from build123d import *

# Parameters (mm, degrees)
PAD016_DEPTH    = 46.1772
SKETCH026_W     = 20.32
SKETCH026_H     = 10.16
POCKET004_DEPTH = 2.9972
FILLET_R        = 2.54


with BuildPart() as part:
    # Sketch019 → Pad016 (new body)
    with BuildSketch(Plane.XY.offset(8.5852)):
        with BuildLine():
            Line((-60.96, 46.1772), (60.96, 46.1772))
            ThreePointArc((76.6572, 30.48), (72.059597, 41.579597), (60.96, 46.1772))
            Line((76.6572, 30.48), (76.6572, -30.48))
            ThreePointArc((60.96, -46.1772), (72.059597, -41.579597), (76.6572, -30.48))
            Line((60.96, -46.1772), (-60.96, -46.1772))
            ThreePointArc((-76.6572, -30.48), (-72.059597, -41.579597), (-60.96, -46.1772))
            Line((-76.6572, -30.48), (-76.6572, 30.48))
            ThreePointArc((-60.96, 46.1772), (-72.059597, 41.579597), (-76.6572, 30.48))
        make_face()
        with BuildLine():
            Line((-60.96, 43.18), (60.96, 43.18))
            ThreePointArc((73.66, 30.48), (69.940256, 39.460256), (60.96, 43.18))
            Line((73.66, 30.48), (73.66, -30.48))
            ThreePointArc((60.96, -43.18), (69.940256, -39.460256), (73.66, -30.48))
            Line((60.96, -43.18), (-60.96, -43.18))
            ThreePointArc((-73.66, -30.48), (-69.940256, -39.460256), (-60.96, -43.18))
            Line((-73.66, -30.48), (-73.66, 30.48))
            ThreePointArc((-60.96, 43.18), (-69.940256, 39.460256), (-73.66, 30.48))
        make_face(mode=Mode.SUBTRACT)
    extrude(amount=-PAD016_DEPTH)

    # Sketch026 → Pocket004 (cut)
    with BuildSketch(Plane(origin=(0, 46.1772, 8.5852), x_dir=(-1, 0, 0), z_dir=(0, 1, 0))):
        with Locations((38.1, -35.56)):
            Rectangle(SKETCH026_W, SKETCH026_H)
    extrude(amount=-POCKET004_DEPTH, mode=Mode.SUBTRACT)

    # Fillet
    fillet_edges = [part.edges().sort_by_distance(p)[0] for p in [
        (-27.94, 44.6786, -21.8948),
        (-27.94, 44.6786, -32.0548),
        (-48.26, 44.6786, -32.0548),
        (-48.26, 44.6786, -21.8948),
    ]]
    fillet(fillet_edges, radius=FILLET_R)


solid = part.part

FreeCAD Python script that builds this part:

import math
import FreeCAD as App
import Part
import Sketcher
from FreeCAD import Vector
Q = App.Units.Quantity


def edges_at(feature, points):
    """Names of the edges that pass closest to the given points."""
    edges = feature.Shape.Edges
    near = lambda p: min(range(len(edges)), key=lambda i: edges[i].distToShape(Part.Vertex(*p))[0])
    return sorted({f"Edge{near(p) + 1}" for p in points})


def add_polygon(sketch, points):
    """Adds a closed chain of lines whose ends are joined by coincident constraints."""
    first, n = sketch.GeometryCount, len(points)
    for a, b in zip(points, points[1:] + points[:1]):
        sketch.addGeometry(Part.LineSegment(App.Vector(*a, 0), App.Vector(*b, 0)), False)
    for i in range(n):
        sketch.addConstraint(Sketcher.Constraint("Coincident", first + i, 2, first + (i + 1) % n, 1))

doc = App.newDocument("Part")
body = doc.addObject("PartDesign::Body", "Body")

# Sketch on XY plane
sketch1 = doc.addObject("Sketcher::SketchObject", "Sketch")
body.addObject(sketch1)
sketch1.AttachmentSupport = (doc.XY_Plane, [""])
sketch1.MapMode = "FlatFace"
sketch1.AttachmentOffset = App.Placement(Vector(0, 0, 0.338 * 25.4), App.Rotation())
sketch1.addGeometry([
    Part.LineSegment(Vector(61, 46, 0), Vector(-61, 46, 0)),  # 0
    Part.ArcOfCircle(Part.Circle(Vector(-61, 30, 0), Vector(0, 0, 1), 16), math.radians(90), math.radians(180)),  # 1
    Part.LineSegment(Vector(-77, 30, 0), Vector(-77, -30, 0)),  # 2
    Part.ArcOfCircle(Part.Circle(Vector(-61, -30, 0), Vector(0, 0, 1), 16), math.radians(180), math.radians(270)),  # 3
    Part.LineSegment(Vector(-61, -46, 0), Vector(61, -46, 0)),  # 4
    Part.ArcOfCircle(Part.Circle(Vector(61, -30, 0), Vector(0, 0, 1), 16), math.radians(-90), math.radians(0)),  # 5
    Part.LineSegment(Vector(77, -30, 0), Vector(77, 30, 0)),  # 6
    Part.ArcOfCircle(Part.Circle(Vector(61, 30, 0), Vector(0, 0, 1), 16), math.radians(0), math.radians(90)),  # 7
    Part.LineSegment(Vector(-61, 43, 0), Vector(61, 43, 0)),  # 8
    Part.ArcOfCircle(Part.Circle(Vector(61, 30, 0), Vector(0, 0, 1), 13), math.radians(0), math.radians(90)),  # 9
    Part.LineSegment(Vector(74, 30, 0), Vector(74, -30, 0)),  # 10
    Part.ArcOfCircle(Part.Circle(Vector(61, -30, 0), Vector(0, 0, 1), 13), math.radians(-90), math.radians(0)),  # 11
    Part.LineSegment(Vector(61, -43, 0), Vector(-61, -43, 0)),  # 12
    Part.ArcOfCircle(Part.Circle(Vector(-61, -30, 0), Vector(0, 0, 1), 13), math.radians(-180), math.radians(-90)),  # 13
    Part.LineSegment(Vector(-74, -30, 0), Vector(-74, 30, 0)),  # 14
    Part.ArcOfCircle(Part.Circle(Vector(-61, 30, 0), Vector(0, 0, 1), 13), math.radians(90), math.radians(180)),  # 15
], False)
sketch1.addConstraint([
    Sketcher.Constraint("Tangent", 0, 2, 1, 1),
    Sketcher.Constraint("Tangent", 1, 2, 2, 1),
    Sketcher.Constraint("Tangent", 2, 2, 3, 1),
    Sketcher.Constraint("Tangent", 3, 2, 4, 1),
    Sketcher.Constraint("Tangent", 4, 2, 5, 1),
    Sketcher.Constraint("Tangent", 5, 2, 6, 1),
    Sketcher.Constraint("Tangent", 6, 2, 7, 1),
    Sketcher.Constraint("Tangent", 7, 2, 0, 1),
    Sketcher.Constraint("Tangent", 8, 2, 9, 2),
    Sketcher.Constraint("Tangent", 9, 1, 10, 1),
    Sketcher.Constraint("Tangent", 10, 2, 11, 2),
    Sketcher.Constraint("Tangent", 11, 1, 12, 1),
    Sketcher.Constraint("Tangent", 12, 2, 13, 2),
    Sketcher.Constraint("Tangent", 13, 1, 14, 1),
    Sketcher.Constraint("Tangent", 14, 2, 15, 2),
    Sketcher.Constraint("Tangent", 15, 1, 8, 1),
    Sketcher.Constraint("Horizontal", 0),
    Sketcher.Constraint("Vertical", 2),
    Sketcher.Constraint("Horizontal", 4),
    Sketcher.Constraint("Vertical", 6),
    Sketcher.Constraint("Horizontal", 8),
    Sketcher.Constraint("Vertical", 10),
    Sketcher.Constraint("Horizontal", 12),
    Sketcher.Constraint("Vertical", 14),
    Sketcher.Constraint("Coincident", 9, 3, 7, 3),
    Sketcher.Constraint("Coincident", 11, 3, 5, 3),
    Sketcher.Constraint("Coincident", 13, 3, 3, 3),
    Sketcher.Constraint("Equal", 1, 3),
    Sketcher.Constraint("Equal", 3, 5),
    Sketcher.Constraint("Equal", 5, 7),
    Sketcher.Constraint("Equal", 13, 15),
    Sketcher.Constraint("Symmetric", 1, 3, 5, 3, -1, 1),
    Sketcher.Constraint("Radius", 9, Q("0.5 in")),
    Sketcher.Constraint("DistanceX", 0, 2, 0, 1, Q("4.8 in")),
    Sketcher.Constraint("DistanceY", 2, 2, 2, 1, Q("2.4 in")),
    Sketcher.Constraint("Radius", 1, Q("0.6179999 in")),
])
pad1 = doc.addObject("PartDesign::Pad", "Pad")
body.addObject(pad1)
pad1.Profile = sketch1
pad1.Length = Q("1.818 in")
pad1.Reversed = True

# Sketch on XZ plane
sketch2 = doc.addObject("Sketcher::SketchObject", "Sketch001")
body.addObject(sketch2)
sketch2.AttachmentSupport = (doc.XZ_Plane, [""])
sketch2.MapMode = "FlatFace"
sketch2.AttachmentOffset = App.Placement(Vector(0, 0, -1.818 * 25.4), App.Rotation())
add_polygon(sketch2, [(-28, -22), (-28, -32), (-48, -32), (-48, -22)])  # lines 0-3
sketch2.addConstraint([
    Sketcher.Constraint("Vertical", 0),
    Sketcher.Constraint("Horizontal", 1),
    Sketcher.Constraint("Vertical", 2),
    Sketcher.Constraint("Horizontal", 3),
    Sketcher.Constraint("DistanceX", 1, 2, 1, 1, Q("0.8 in")),
    Sketcher.Constraint("DistanceY", 0, 2, 0, 1, Q("0.4 in")),
    Sketcher.Constraint("DistanceX", 0, 2, -1, 1, Q("1.1 in")),
    Sketcher.Constraint("DistanceY", 0, 2, -1, 1, Q("1.262 in")),
])
pocket1 = doc.addObject("PartDesign::Pocket", "Pocket")
body.addObject(pocket1)
pocket1.Profile = sketch2
pocket1.Length = Q("0.118 in")
pocket1.Reversed = True
doc.recompute()

fillet = doc.addObject("PartDesign::Fillet", "Fillet")
body.addObject(fillet)
fillet.Base = (pocket1, edges_at(pocket1, [
    (-27.94, 44.679, -21.895),
    (-27.94, 44.679, -32.055),
    (-48.26, 44.679, -32.055),
    (-48.26, 44.679, -21.895),
]))
fillet.Radius = Q("0.1 in")

doc.recompute()
